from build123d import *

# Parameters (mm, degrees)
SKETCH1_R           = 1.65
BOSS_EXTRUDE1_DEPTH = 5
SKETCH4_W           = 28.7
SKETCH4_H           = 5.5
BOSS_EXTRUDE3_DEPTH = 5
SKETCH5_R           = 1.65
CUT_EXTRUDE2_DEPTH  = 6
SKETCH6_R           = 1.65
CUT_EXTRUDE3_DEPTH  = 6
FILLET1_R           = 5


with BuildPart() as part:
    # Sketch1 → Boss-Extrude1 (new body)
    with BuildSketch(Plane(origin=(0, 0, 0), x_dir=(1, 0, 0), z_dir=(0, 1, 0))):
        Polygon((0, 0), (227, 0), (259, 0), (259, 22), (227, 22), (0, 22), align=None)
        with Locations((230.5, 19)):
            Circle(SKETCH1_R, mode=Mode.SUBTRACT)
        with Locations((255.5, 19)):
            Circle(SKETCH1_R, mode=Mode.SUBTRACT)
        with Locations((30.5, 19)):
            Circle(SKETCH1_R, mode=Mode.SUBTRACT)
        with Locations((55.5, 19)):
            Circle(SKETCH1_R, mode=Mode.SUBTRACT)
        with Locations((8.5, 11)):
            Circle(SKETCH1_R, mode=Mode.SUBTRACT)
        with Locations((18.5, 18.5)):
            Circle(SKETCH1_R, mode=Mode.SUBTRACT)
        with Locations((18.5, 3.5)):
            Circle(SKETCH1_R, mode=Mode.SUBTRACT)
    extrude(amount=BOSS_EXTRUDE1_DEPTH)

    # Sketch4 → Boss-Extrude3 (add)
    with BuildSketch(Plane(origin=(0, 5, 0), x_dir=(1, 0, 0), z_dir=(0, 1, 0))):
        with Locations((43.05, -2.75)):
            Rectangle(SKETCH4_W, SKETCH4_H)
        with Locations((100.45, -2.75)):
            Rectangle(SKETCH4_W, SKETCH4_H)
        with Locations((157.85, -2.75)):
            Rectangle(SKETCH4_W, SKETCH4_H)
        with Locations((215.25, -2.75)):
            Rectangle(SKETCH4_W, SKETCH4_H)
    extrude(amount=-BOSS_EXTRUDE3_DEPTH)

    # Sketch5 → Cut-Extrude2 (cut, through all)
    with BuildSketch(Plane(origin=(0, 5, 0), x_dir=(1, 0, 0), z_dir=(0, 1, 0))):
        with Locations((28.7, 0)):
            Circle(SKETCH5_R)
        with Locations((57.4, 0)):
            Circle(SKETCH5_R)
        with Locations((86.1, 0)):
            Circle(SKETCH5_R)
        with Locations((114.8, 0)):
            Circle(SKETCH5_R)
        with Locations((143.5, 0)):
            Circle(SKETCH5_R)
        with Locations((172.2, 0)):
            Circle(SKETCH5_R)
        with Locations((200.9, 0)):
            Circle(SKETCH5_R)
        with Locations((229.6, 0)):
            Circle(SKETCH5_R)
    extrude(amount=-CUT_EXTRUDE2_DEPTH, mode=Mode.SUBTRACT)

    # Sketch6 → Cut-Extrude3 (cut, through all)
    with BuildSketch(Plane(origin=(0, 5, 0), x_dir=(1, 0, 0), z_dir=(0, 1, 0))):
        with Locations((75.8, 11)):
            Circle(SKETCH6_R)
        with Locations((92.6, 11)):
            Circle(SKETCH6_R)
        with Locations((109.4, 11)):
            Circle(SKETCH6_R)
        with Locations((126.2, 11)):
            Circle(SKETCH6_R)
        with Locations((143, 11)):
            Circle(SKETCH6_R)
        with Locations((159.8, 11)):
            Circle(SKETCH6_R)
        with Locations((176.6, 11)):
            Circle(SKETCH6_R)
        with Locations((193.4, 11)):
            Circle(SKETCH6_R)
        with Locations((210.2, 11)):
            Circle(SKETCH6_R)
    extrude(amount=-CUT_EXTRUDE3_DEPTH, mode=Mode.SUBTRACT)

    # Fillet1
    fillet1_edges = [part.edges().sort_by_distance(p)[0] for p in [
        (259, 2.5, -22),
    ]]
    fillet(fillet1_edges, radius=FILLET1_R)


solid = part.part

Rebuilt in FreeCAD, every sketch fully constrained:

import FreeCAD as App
import Part
import Sketcher
from FreeCAD import Vector


def edges_at(feature, points):
    """Names of the edges that pass closest to the given points."""
    edges = feature.Shape.Edges
    near = lambda p: min(range(len(edges)), key=lambda i: edges[i].distToShape(Part.Vertex(*p))[0])
    return sorted({f"Edge{near(p) + 1}" for p in points})

doc = App.newDocument("Part")
body = doc.addObject("PartDesign::Body", "Body")

sketch1 = body.newObject("Sketcher::SketchObject", "Sketch")
sketch1.AttachmentSupport = (doc.getObject("XZ_Plane"), [""])
sketch1.MapMode = "FlatFace"
sketch1.addGeometry(Part.LineSegment(Vector(0, 0, 0), Vector(259, 0, 0)), False)
sketch1.addGeometry(Part.LineSegment(Vector(259, 0, 0), Vector(259, -22, 0)), False)
sketch1.addGeometry(Part.LineSegment(Vector(259, -22, 0), Vector(0, -22, 0)), False)
sketch1.addGeometry(Part.LineSegment(Vector(0, -22, 0), Vector(0, 0, 0)), False)
sketch1.addGeometry(Part.Circle(Vector(18.5, -3.5, 0), Vector(0, 0, 1), 1.6), False)
sketch1.addGeometry(Part.Circle(Vector(8.5, -11, 0), Vector(0, 0, 1), 1.6), False)
sketch1.addGeometry(Part.Circle(Vector(18.5, -18.5, 0), Vector(0, 0, 1), 1.6), False)
sketch1.addGeometry(Part.Circle(Vector(30.5, -19, 0), Vector(0, 0, 1), 1.6), False)
sketch1.addGeometry(Part.Circle(Vector(55.5, -19, 0), Vector(0, 0, 1), 1.6), False)
sketch1.addGeometry(Part.Circle(Vector(230.5, -19, 0), Vector(0, 0, 1), 1.6), False)
sketch1.addGeometry(Part.Circle(Vector(255.5, -19, 0), Vector(0, 0, 1), 1.6), False)
sketch1.addConstraint(Sketcher.Constraint("Coincident", 0, 2, 1, 1))
sketch1.addConstraint(Sketcher.Constraint("Coincident", 1, 2, 2, 1))
sketch1.addConstraint(Sketcher.Constraint("Coincident", 2, 2, 3, 1))
sketch1.addConstraint(Sketcher.Constraint("Coincident", 3, 2, 0, 1))
sketch1.addConstraint(Sketcher.Constraint("Horizontal", 0))
sketch1.addConstraint(Sketcher.Constraint("Vertical", 1))
sketch1.addConstraint(Sketcher.Constraint("Horizontal", 2))
sketch1.addConstraint(Sketcher.Constraint("Vertical", 3))
sketch1.addConstraint(Sketcher.Constraint("Coincident", 3, 2, -1, 1))
sketch1.addConstraint(Sketcher.Constraint("Equal", 4, 5))
sketch1.addConstraint(Sketcher.Constraint("Equal", 5, 6))
sketch1.addConstraint(Sketcher.Constraint("Equal", 6, 7))
sketch1.addConstraint(Sketcher.Constraint("Equal", 7, 8))
sketch1.addConstraint(Sketcher.Constraint("Equal", 8, 9))
sketch1.addConstraint(Sketcher.Constraint("Equal", 9, 10))
sketch1.addConstraint(Sketcher.Constraint("Horizontal", 7, 3, 8, 3))
sketch1.addConstraint(Sketcher.Constraint("Horizontal", 8, 3, 9, 3))
sketch1.addConstraint(Sketcher.Constraint("Horizontal", 9, 3, 10, 3))
sketch1.addConstraint(Sketcher.Constraint("Vertical", 4, 3, 6, 3))
sketch1.addConstraint(Sketcher.Constraint("Diameter", 4, 3.3))
sketch1.addConstraint(Sketcher.Constraint("DistanceX", 0, 1, 0, 2, 259.0))
sketch1.addConstraint(Sketcher.Constraint("DistanceY", 1, 2, 1, 1, 22.0))
sketch1.addConstraint(Sketcher.Constraint("DistanceY", 5, 3, -1, 1, 11.0))
sketch1.addConstraint(Sketcher.Constraint("DistanceY", 7, 3, -1, 1, 19.0))
sketch1.addConstraint(Sketcher.Constraint("DistanceX", 5, 3, 4, 3, 10.0))
sketch1.addConstraint(Sketcher.Constraint("DistanceY", 6, 3, 4, 3, 15.0))
sketch1.addConstraint(Sketcher.Constraint("DistanceX", 6, 3, 7, 3, 12.0))
sketch1.addConstraint(Sketcher.Constraint("DistanceX", 7, 3, 8, 3, 25.0))
sketch1.addConstraint(Sketcher.Constraint("DistanceX", 8, 3, 9, 3, 175.0))
sketch1.addConstraint(Sketcher.Constraint("DistanceX", 9, 3, 10, 3, 25.0))
sketch1.addConstraint(Sketcher.Constraint("DistanceX", -1, 1, 4, 3, 18.5))
sketch1.addConstraint(Sketcher.Constraint("DistanceY", 4, 3, -1, 1, 3.5))
pad1 = body.newObject("PartDesign::Pad", "Pad")
pad1.Profile = sketch1
pad1.Length = 5
pad1.Reversed = True

sketch2 = body.newObject("Sketcher::SketchObject", "Sketch001")
sketch2.AttachmentSupport = (doc.getObject("XZ_Plane"), [""])
sketch2.MapMode = "FlatFace"
sketch2.AttachmentOffset = App.Placement(Vector(0, 0, -5), App.Rotation())
sketch2.addGeometry(Part.LineSegment(Vector(29, 0, 0), Vector(29, 6, 0)), False)
sketch2.addGeometry(Part.LineSegment(Vector(29, 6, 0), Vector(57, 6, 0)), False)
sketch2.addGeometry(Part.LineSegment(Vector(57, 6, 0), Vector(57, 0, 0)), False)
sketch2.addGeometry(Part.LineSegment(Vector(57, 0, 0), Vector(29, 0, 0)), False)
sketch2.addGeometry(Part.LineSegment(Vector(86, 0, 0), Vector(86, 6, 0)), False)
sketch2.addGeometry(Part.LineSegment(Vector(86, 6, 0), Vector(115, 6, 0)), False)
sketch2.addGeometry(Part.LineSegment(Vector(115, 6, 0), Vector(115, 0, 0)), False)
sketch2.addGeometry(Part.LineSegment(Vector(115, 0, 0), Vector(86, 0, 0)), False)
sketch2.addGeometry(Part.LineSegment(Vector(144, 0, 0), Vector(144, 6, 0)), False)
sketch2.addGeometry(Part.LineSegment(Vector(144, 6, 0), Vector(172, 6, 0)), False)
sketch2.addGeometry(Part.LineSegment(Vector(172, 6, 0), Vector(172, 0, 0)), False)
sketch2.addGeometry(Part.LineSegment(Vector(172, 0, 0), Vector(144, 0, 0)), False)
sketch2.addGeometry(Part.LineSegment(Vector(201, 0, 0), Vector(201, 6, 0)), False)
sketch2.addGeometry(Part.LineSegment(Vector(201, 6, 0), Vector(230, 6, 0)), False)
sketch2.addGeometry(Part.LineSegment(Vector(230, 6, 0), Vector(230, 0, 0)), False)
sketch2.addGeometry(Part.LineSegment(Vector(230, 0, 0), Vector(201, 0, 0)), False)
sketch2.addConstraint(Sketcher.Constraint("Coincident", 0, 2, 1, 1))
sketch2.addConstraint(Sketcher.Constraint("Coincident", 1, 2, 2, 1))
sketch2.addConstraint(Sketcher.Constraint("Coincident", 2, 2, 3, 1))
sketch2.addConstraint(Sketcher.Constraint("Coincident", 3, 2, 0, 1))
sketch2.addConstraint(Sketcher.Constraint("Coincident", 4, 2, 5, 1))
sketch2.addConstraint(Sketcher.Constraint("Coincident", 5, 2, 6, 1))
sketch2.addConstraint(Sketcher.Constraint("Coincident", 6, 2, 7, 1))
sketch2.addConstraint(Sketcher.Constraint("Coincident", 7, 2, 4, 1))
sketch2.addConstraint(Sketcher.Constraint("Coincident", 8, 2, 9, 1))
sketch2.addConstraint(Sketcher.Constraint("Coincident", 9, 2, 10, 1))
sketch2.addConstraint(Sketcher.Constraint("Coincident", 10, 2, 11, 1))
sketch2.addConstraint(Sketcher.Constraint("Coincident", 11, 2, 8, 1))
sketch2.addConstraint(Sketcher.Constraint("Coincident", 12, 2, 13, 1))
sketch2.addConstraint(Sketcher.Constraint("Coincident", 13, 2, 14, 1))
sketch2.addConstraint(Sketcher.Constraint("Coincident", 14, 2, 15, 1))
sketch2.addConstraint(Sketcher.Constraint("Coincident", 15, 2, 12, 1))
sketch2.addConstraint(Sketcher.Constraint("Vertical", 0))
sketch2.addConstraint(Sketcher.Constraint("Horizontal", 1))
sketch2.addConstraint(Sketcher.Constraint("Vertical", 2))
sketch2.addConstraint(Sketcher.Constraint("Horizontal", 3))
sketch2.addConstraint(Sketcher.Constraint("Vertical", 4))
sketch2.addConstraint(Sketcher.Constraint("Horizontal", 5))
sketch2.addConstraint(Sketcher.Constraint("Vertical", 6))
sketch2.addConstraint(Sketcher.Constraint("Horizontal", 7))
sketch2.addConstraint(Sketcher.Constraint("Vertical", 8))
sketch2.addConstraint(Sketcher.Constraint("Horizontal", 9))
sketch2.addConstraint(Sketcher.Constraint("Vertical", 10))
sketch2.addConstraint(Sketcher.Constraint("Horizontal", 11))
sketch2.addConstraint(Sketcher.Constraint("Vertical", 12))
sketch2.addConstraint(Sketcher.Constraint("Horizontal", 13))
sketch2.addConstraint(Sketcher.Constraint("Vertical", 14))
sketch2.addConstraint(Sketcher.Constraint("Horizontal", 15))
sketch2.addConstraint(Sketcher.Constraint("PointOnObject", 2, 2, -1))
sketch2.addConstraint(Sketcher.Constraint("PointOnObject", 6, 2, -1))
sketch2.addConstraint(Sketcher.Constraint("PointOnObject", 10, 2, -1))
sketch2.addConstraint(Sketcher.Constraint("PointOnObject", 14, 2, -1))
sketch2.addConstraint(Sketcher.Constraint("Horizontal", 1, 2, 4, 2))
sketch2.addConstraint(Sketcher.Constraint("Horizontal", 5, 2, 8, 2))
sketch2.addConstraint(Sketcher.Constraint("Horizontal", 9, 2, 12, 2))
sketch2.addConstraint(Sketcher.Constraint("Equal", 3, 5))
sketch2.addConstraint(Sketcher.Constraint("Equal", 7, 9))
sketch2.addConstraint(Sketcher.Constraint("Equal", 11, 13))
sketch2.addConstraint(Sketcher.Constraint("DistanceX", 1, 1, 1, 2, 28.7))
sketch2.addConstraint(Sketcher.Constraint("DistanceY", 0, 1, 0, 2, 5.5))
sketch2.addConstraint(Sketcher.Constraint("DistanceX", -1, 1, 0, 2, 28.7))
sketch2.addConstraint(Sketcher.Constraint("DistanceX", -1, 1, 4, 2, 86.1))
sketch2.addConstraint(Sketcher.Constraint("DistanceX", -1, 1, 8, 2, 143.5))
sketch2.addConstraint(Sketcher.Constraint("DistanceX", -1, 1, 12, 2, 200.9))
pad2 = body.newObject("PartDesign::Pad", "Pad001")
pad2.Profile = sketch2
pad2.Length = 5

sketch3 = body.newObject("Sketcher::SketchObject", "Sketch002")
sketch3.AttachmentSupport = (doc.getObject("XZ_Plane"), [""])
sketch3.MapMode = "FlatFace"
sketch3.AttachmentOffset = App.Placement(Vector(0, 0, -5), App.Rotation())
sketch3.addGeometry(Part.Circle(Vector(28.7, 0, 0), Vector(0, 0, 1), 1.6), False)
sketch3.addGeometry(Part.Circle(Vector(57.4, 0, 0), Vector(0, 0, 1), 1.6), False)
sketch3.addGeometry(Part.Circle(Vector(86.1, 0, 0), Vector(0, 0, 1), 1.6), False)
sketch3.addGeometry(Part.Circle(Vector(114.8, 0, 0), Vector(0, 0, 1), 1.6), False)
sketch3.addGeometry(Part.Circle(Vector(143.5, 0, 0), Vector(0, 0, 1), 1.6), False)
sketch3.addGeometry(Part.Circle(Vector(172.2, 0, 0), Vector(0, 0, 1), 1.6), False)
sketch3.addGeometry(Part.Circle(Vector(200.9, 0, 0), Vector(0, 0, 1), 1.6), False)
sketch3.addGeometry(Part.Circle(Vector(229.6, 0, 0), Vector(0, 0, 1), 1.6), False)
sketch3.addConstraint(Sketcher.Constraint("Equal", 0, 1))
sketch3.addConstraint(Sketcher.Constraint("Equal", 1, 2))
sketch3.addConstraint(Sketcher.Constraint("Equal", 2, 3))
sketch3.addConstraint(Sketcher.Constraint("Equal", 3, 4))
sketch3.addConstraint(Sketcher.Constraint("Equal", 4, 5))
sketch3.addConstraint(Sketcher.Constraint("Equal", 5, 6))
sketch3.addConstraint(Sketcher.Constraint("Equal", 6, 7))
sketch3.addConstraint(Sketcher.Constraint("PointOnObject", 0, 3, -1))
sketch3.addConstraint(Sketcher.Constraint("PointOnObject", 1, 3, -1))
sketch3.addConstraint(Sketcher.Constraint("PointOnObject", 2, 3, -1))
sketch3.addConstraint(Sketcher.Constraint("PointOnObject", 3, 3, -1))
sketch3.addConstraint(Sketcher.Constraint("PointOnObject", 4, 3, -1))
sketch3.addConstraint(Sketcher.Constraint("PointOnObject", 5, 3, -1))
sketch3.addConstraint(Sketcher.Constraint("PointOnObject", 6, 3, -1))
sketch3.addConstraint(Sketcher.Constraint("PointOnObject", 7, 3, -1))
sketch3.addConstraint(Sketcher.Constraint("Diameter", 0, 3.3))
sketch3.addConstraint(Sketcher.Constraint("DistanceX", -1, 1, 0, 3, 28.7))
sketch3.addConstraint(Sketcher.Constraint("DistanceX", -1, 1, 1, 3, 57.4))
sketch3.addConstraint(Sketcher.Constraint("DistanceX", -1, 1, 2, 3, 86.1))
sketch3.addConstraint(Sketcher.Constraint("DistanceX", -1, 1, 3, 3, 114.8))
sketch3.addConstraint(Sketcher.Constraint("DistanceX", -1, 1, 4, 3, 143.5))
sketch3.addConstraint(Sketcher.Constraint("DistanceX", -1, 1, 5, 3, 172.2))
sketch3.addConstraint(Sketcher.Constraint("DistanceX", -1, 1, 6, 3, 200.9))
sketch3.addConstraint(Sketcher.Constraint("DistanceX", -1, 1, 7, 3, 229.6))
pocket1 = body.newObject("PartDesign::Pocket", "Pocket")
pocket1.Profile = sketch3
pocket1.Type = "ThroughAll"
pocket1.Reversed = True

sketch4 = body.newObject("Sketcher::SketchObject", "Sketch003")
sketch4.AttachmentSupport = (doc.getObject("XZ_Plane"), [""])
sketch4.MapMode = "FlatFace"
sketch4.AttachmentOffset = App.Placement(Vector(0, 0, -5), App.Rotation())
sketch4.addGeometry(Part.Circle(Vector(75.8, -11, 0), Vector(0, 0, 1), 1.6), False)
sketch4.addGeometry(Part.Circle(Vector(92.6, -11, 0), Vector(0, 0, 1), 1.6), False)
sketch4.addGeometry(Part.Circle(Vector(109.4, -11, 0), Vector(0, 0, 1), 1.6), False)
sketch4.addGeometry(Part.Circle(Vector(126.2, -11, 0), Vector(0, 0, 1), 1.6), False)
sketch4.addGeometry(Part.Circle(Vector(143, -11, 0), Vector(0, 0, 1), 1.6), False)
sketch4.addGeometry(Part.Circle(Vector(159.8, -11, 0), Vector(0, 0, 1), 1.6), False)
sketch4.addGeometry(Part.Circle(Vector(176.6, -11, 0), Vector(0, 0, 1), 1.6), False)
sketch4.addGeometry(Part.Circle(Vector(193.4, -11, 0), Vector(0, 0, 1), 1.6), False)
sketch4.addGeometry(Part.Circle(Vector(210.2, -11, 0), Vector(0, 0, 1), 1.6), False)
sketch4.addConstraint(Sketcher.Constraint("Equal", 0, 1))
sketch4.addConstraint(Sketcher.Constraint("Equal", 1, 2))
sketch4.addConstraint(Sketcher.Constraint("Equal", 2, 3))
sketch4.addConstraint(Sketcher.Constraint("Equal", 3, 4))
sketch4.addConstraint(Sketcher.Constraint("Equal", 4, 5))
sketch4.addConstraint(Sketcher.Constraint("Equal", 5, 6))
sketch4.addConstraint(Sketcher.Constraint("Equal", 6, 7))
sketch4.addConstraint(Sketcher.Constraint("Equal", 7, 8))
sketch4.addConstraint(Sketcher.Constraint("Horizontal", 0, 3, 1, 3))
sketch4.addConstraint(Sketcher.Constraint("Horizontal", 1, 3, 2, 3))
sketch4.addConstraint(Sketcher.Constraint("Horizontal", 2, 3, 3, 3))
sketch4.addConstraint(Sketcher.Constraint("Horizontal", 3, 3, 4, 3))
sketch4.addConstraint(Sketcher.Constraint("Horizontal", 4, 3, 5, 3))
sketch4.addConstraint(Sketcher.Constraint("Horizontal", 5, 3, 6, 3))
sketch4.addConstraint(Sketcher.Constraint("Horizontal", 6, 3, 7, 3))
sketch4.addConstraint(Sketcher.Constraint("Horizontal", 7, 3, 8, 3))
sketch4.addConstraint(Sketcher.Constraint("Diameter", 0, 3.3))
sketch4.addConstraint(Sketcher.Constraint("DistanceY", 0, 3, -1, 1, 11.0))
sketch4.addConstraint(Sketcher.Constraint("DistanceX", -1, 1, 4, 3, 143.0))
sketch4.addConstraint(Sketcher.Constraint("DistanceX", 0, 3, 5, 3, 84.0))
sketch4.addConstraint(Sketcher.Constraint("DistanceX", 1, 3, 6, 3, 84.0))
sketch4.addConstraint(Sketcher.Constraint("DistanceX", 2, 3, 7, 3, 84.0))
sketch4.addConstraint(Sketcher.Constraint("DistanceX", 3, 3, 8, 3, 84.0))
sketch4.addConstraint(Sketcher.Constraint("DistanceX", -1, 1, 0, 3, 75.8))
sketch4.addConstraint(Sketcher.Constraint("DistanceX", -1, 1, 1, 3, 92.6))
sketch4.addConstraint(Sketcher.Constraint("DistanceX", -1, 1, 2, 3, 109.4))
sketch4.addConstraint(Sketcher.Constraint("DistanceX", -1, 1, 3, 3, 126.2))
pocket2 = body.newObject("PartDesign::Pocket", "Pocket001")
pocket2.Profile = sketch4
pocket2.Type = "ThroughAll"
pocket2.Reversed = True
doc.recompute()

fillet = body.newObject("PartDesign::Fillet", "Fillet")
fillet.Base = (pocket2, edges_at(pocket2, [(259, 2.5, -22)]))
fillet.Radius = 5

doc.recompute()
